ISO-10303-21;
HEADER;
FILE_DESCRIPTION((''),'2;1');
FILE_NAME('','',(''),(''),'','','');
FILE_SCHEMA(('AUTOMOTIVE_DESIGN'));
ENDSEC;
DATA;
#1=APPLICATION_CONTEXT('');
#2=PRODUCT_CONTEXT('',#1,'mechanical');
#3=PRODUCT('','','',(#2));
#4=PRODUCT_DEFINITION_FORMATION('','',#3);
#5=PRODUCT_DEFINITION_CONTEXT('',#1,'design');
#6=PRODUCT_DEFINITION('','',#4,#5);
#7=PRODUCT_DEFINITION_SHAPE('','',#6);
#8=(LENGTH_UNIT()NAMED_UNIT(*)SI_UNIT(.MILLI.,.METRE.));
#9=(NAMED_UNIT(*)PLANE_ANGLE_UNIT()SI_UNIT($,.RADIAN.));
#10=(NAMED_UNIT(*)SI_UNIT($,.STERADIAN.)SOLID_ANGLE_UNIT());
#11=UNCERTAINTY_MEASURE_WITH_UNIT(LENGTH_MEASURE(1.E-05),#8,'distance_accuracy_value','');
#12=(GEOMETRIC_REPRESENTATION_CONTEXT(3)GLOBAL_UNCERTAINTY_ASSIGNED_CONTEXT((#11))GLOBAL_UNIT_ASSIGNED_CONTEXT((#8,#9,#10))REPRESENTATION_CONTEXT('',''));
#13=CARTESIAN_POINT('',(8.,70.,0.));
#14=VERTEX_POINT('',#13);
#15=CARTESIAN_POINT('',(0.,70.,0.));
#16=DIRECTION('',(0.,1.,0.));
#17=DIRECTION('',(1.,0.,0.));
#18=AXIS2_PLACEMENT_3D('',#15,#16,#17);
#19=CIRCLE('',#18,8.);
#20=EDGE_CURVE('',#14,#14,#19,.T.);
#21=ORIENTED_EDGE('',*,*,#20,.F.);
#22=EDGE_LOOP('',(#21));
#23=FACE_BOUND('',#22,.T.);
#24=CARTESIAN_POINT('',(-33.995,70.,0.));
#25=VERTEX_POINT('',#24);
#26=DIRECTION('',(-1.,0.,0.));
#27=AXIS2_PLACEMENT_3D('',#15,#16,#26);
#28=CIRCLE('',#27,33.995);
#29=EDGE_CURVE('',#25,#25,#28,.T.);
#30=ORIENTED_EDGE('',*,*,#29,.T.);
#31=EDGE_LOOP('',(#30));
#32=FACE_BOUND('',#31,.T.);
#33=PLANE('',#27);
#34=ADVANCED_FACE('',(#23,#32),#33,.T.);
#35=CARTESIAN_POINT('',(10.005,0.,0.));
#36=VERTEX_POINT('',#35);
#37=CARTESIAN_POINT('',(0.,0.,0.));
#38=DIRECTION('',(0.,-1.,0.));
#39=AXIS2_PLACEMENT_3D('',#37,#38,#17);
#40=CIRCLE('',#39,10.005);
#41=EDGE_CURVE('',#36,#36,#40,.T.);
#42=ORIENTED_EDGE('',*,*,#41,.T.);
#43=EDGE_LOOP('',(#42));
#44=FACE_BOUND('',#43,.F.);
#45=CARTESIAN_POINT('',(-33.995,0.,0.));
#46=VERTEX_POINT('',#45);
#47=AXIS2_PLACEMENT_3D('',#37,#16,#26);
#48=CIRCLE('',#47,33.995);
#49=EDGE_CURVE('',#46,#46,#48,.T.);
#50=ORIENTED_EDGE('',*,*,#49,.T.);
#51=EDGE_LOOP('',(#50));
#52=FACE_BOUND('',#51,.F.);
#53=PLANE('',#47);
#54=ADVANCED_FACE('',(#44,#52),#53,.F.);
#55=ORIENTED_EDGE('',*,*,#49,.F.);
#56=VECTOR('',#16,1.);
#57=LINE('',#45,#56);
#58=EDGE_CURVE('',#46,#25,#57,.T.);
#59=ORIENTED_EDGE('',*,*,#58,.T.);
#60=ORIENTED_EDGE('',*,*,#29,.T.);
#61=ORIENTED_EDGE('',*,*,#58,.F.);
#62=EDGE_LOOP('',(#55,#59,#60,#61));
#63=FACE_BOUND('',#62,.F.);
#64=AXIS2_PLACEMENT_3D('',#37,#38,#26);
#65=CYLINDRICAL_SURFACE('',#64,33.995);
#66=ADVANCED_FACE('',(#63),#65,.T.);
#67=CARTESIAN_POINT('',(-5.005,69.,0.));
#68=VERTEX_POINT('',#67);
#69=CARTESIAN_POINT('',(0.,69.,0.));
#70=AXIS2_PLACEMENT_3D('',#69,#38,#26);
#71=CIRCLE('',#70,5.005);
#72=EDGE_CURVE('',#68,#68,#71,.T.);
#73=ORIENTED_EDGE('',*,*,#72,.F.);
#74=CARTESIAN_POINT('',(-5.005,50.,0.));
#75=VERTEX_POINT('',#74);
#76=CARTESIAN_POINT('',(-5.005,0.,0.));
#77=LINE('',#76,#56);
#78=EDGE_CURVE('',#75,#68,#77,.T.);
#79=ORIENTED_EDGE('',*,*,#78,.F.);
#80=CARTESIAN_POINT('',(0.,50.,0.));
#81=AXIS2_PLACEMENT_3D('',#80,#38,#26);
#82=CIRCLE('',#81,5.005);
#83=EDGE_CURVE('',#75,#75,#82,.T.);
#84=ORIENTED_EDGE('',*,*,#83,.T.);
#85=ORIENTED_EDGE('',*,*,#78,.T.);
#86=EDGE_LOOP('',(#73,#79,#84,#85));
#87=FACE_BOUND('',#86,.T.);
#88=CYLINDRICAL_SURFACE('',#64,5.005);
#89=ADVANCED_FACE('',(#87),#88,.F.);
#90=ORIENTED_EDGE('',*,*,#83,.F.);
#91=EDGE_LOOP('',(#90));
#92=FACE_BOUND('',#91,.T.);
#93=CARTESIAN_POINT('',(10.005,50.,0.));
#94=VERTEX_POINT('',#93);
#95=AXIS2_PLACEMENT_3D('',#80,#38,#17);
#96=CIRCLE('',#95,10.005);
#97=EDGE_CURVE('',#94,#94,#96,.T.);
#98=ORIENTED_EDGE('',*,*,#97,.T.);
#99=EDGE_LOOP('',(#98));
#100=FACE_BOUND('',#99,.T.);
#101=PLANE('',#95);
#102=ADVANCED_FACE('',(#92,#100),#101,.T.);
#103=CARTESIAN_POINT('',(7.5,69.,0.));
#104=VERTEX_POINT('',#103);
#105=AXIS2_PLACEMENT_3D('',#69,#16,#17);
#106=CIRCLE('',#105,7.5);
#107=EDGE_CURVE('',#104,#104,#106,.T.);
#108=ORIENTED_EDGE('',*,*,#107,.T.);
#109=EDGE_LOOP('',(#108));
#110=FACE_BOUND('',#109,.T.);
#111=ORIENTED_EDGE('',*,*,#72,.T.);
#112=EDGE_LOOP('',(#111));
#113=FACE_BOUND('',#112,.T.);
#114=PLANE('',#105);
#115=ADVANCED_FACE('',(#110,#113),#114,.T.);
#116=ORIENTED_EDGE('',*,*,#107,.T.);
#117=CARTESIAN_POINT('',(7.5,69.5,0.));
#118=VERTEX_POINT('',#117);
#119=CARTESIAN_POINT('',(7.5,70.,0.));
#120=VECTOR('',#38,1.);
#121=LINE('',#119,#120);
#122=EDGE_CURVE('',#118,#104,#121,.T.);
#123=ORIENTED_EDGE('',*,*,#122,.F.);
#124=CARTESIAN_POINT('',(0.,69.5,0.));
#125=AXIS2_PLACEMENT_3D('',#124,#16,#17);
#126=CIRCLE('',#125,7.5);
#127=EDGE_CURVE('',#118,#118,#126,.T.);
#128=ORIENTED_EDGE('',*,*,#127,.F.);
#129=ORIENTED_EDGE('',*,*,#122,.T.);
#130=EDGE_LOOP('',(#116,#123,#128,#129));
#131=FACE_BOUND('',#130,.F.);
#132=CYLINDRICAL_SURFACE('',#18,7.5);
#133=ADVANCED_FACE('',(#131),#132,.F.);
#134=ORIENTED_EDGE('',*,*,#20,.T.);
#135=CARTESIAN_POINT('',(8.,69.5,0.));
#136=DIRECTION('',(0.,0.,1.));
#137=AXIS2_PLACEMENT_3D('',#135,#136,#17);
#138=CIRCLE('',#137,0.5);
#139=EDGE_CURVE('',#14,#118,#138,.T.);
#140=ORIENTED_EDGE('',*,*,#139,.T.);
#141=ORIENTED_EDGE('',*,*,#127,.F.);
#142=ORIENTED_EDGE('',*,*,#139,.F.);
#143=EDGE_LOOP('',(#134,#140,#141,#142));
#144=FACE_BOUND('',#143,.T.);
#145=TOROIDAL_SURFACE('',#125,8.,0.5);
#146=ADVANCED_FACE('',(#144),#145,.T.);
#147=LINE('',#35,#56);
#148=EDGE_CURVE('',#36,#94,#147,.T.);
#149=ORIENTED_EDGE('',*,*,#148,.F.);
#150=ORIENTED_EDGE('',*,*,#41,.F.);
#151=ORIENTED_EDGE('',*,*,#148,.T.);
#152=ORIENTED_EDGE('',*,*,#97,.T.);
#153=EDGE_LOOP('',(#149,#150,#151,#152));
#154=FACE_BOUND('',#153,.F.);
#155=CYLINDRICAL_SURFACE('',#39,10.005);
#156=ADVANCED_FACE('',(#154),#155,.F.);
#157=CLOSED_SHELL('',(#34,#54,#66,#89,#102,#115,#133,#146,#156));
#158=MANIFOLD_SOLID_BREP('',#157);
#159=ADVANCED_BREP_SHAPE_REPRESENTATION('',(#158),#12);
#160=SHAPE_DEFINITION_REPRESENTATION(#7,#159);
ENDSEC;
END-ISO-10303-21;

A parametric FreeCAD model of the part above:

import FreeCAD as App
import Part
import Sketcher
from FreeCAD import Vector


def edges_at(feature, points):
    """Names of the edges that pass closest to the given points."""
    edges = feature.Shape.Edges
    near = lambda p: min(range(len(edges)), key=lambda i: edges[i].distToShape(Part.Vertex(*p))[0])
    return sorted({f"Edge{near(p) + 1}" for p in points})

doc = App.newDocument("Part")
params = doc.addObject("Spreadsheet::Sheet", "Params")
for row, (alias, value) in enumerate([
    ("sketch1_diameter", "67.99 mm"),
    ("sketch1_diameter2", "10.01 mm"),
    ("pad1_length", "70 mm"),
    ("sketch2_diameter", "20.01 mm"),
    ("sketch2_diameter2", "10.01 mm"),
    ("pocket1_length", "50 mm"),
    ("sketch3_diameter", "15 mm"),
    ("pocket2_length", "1 mm"),
    ("fillet_radius", "0.5 mm"),
], start=1):
    params.set(f"A{row}", alias)
    params.set(f"B{row}", "=" + value)
    params.setAlias(f"B{row}", alias)

body = doc.addObject("PartDesign::Body", "Body")

sketch1 = body.newObject("Sketcher::SketchObject", "Sketch")
sketch1.AttachmentSupport = (doc.getObject("XZ_Plane"), [""])
sketch1.MapMode = "FlatFace"
sketch1.addGeometry([
    Part.Circle(Vector(0, 0, 0), Vector(0, 0, 1), 33.995),
    Part.Circle(Vector(0, 0, 0), Vector(0, 0, 1), 5.005),
], False)
sketch1.addConstraint([
    Sketcher.Constraint("Coincident", 0, 3, -1, 1),
    Sketcher.Constraint("Coincident", 1, 3, -1, 1),
    Sketcher.Constraint("Diameter", 0, 67.99),
    Sketcher.Constraint("Diameter", 1, 10.01),
])
sketch1.setExpression("Constraints[2]", "Params.sketch1_diameter")
sketch1.setExpression("Constraints[3]", "Params.sketch1_diameter2")
pad1 = body.newObject("PartDesign::Pad", "Pad")
pad1.Profile = sketch1
pad1.setExpression("Length", "Params.pad1_length")
pad1.Reversed = True

sketch2 = body.newObject("Sketcher::SketchObject", "Sketch001")
sketch2.AttachmentSupport = (doc.getObject("XZ_Plane"), [""])
sketch2.MapMode = "FlatFace"
sketch2.addGeometry([
    Part.Circle(Vector(0, 0, 0), Vector(0, 0, 1), 10.005),
    Part.Circle(Vector(0, 0, 0), Vector(0, 0, 1), 5.005),
], False)
sketch2.addConstraint([
    Sketcher.Constraint("Coincident", 0, 3, -1, 1),
    Sketcher.Constraint("Coincident", 1, 3, -1, 1),
    Sketcher.Constraint("Diameter", 0, 20.01),
    Sketcher.Constraint("Diameter", 1, 10.01),
])
sketch2.setExpression("Constraints[2]", "Params.sketch2_diameter")
sketch2.setExpression("Constraints[3]", "Params.sketch2_diameter2")
pocket1 = body.newObject("PartDesign::Pocket", "Pocket")
pocket1.Profile = sketch2
pocket1.setExpression("Length", "Params.pocket1_length")

sketch3 = body.newObject("Sketcher::SketchObject", "Sketch002")
sketch3.AttachmentSupport = (doc.getObject("XZ_Plane"), [""])
sketch3.MapMode = "FlatFace"
sketch3.AttachmentOffset = App.Placement(Vector(0, 0, -70), App.Rotation())
sketch3.addGeometry(Part.Circle(Vector(0, 0, 0), Vector(0, 0, 1), 7.5), False)
sketch3.addConstraint([
    Sketcher.Constraint("Coincident", 0, 3, -1, 1),
    Sketcher.Constraint("Diameter", 0, 15.0),
])
sketch3.setExpression("Constraints[1]", "Params.sketch3_diameter")
pocket2 = body.newObject("PartDesign::Pocket", "Pocket001")
pocket2.Profile = sketch3
pocket2.setExpression("Length", "Params.pocket2_length")
pocket2.Reversed = True
doc.recompute()

fillet = body.newObject("PartDesign::Fillet", "Fillet")
fillet.Base = (pocket2, edges_at(pocket2, [(-7.5, 70, 0)]))
fillet.setExpression("Radius", "Params.fillet_radius")

doc.recompute()
